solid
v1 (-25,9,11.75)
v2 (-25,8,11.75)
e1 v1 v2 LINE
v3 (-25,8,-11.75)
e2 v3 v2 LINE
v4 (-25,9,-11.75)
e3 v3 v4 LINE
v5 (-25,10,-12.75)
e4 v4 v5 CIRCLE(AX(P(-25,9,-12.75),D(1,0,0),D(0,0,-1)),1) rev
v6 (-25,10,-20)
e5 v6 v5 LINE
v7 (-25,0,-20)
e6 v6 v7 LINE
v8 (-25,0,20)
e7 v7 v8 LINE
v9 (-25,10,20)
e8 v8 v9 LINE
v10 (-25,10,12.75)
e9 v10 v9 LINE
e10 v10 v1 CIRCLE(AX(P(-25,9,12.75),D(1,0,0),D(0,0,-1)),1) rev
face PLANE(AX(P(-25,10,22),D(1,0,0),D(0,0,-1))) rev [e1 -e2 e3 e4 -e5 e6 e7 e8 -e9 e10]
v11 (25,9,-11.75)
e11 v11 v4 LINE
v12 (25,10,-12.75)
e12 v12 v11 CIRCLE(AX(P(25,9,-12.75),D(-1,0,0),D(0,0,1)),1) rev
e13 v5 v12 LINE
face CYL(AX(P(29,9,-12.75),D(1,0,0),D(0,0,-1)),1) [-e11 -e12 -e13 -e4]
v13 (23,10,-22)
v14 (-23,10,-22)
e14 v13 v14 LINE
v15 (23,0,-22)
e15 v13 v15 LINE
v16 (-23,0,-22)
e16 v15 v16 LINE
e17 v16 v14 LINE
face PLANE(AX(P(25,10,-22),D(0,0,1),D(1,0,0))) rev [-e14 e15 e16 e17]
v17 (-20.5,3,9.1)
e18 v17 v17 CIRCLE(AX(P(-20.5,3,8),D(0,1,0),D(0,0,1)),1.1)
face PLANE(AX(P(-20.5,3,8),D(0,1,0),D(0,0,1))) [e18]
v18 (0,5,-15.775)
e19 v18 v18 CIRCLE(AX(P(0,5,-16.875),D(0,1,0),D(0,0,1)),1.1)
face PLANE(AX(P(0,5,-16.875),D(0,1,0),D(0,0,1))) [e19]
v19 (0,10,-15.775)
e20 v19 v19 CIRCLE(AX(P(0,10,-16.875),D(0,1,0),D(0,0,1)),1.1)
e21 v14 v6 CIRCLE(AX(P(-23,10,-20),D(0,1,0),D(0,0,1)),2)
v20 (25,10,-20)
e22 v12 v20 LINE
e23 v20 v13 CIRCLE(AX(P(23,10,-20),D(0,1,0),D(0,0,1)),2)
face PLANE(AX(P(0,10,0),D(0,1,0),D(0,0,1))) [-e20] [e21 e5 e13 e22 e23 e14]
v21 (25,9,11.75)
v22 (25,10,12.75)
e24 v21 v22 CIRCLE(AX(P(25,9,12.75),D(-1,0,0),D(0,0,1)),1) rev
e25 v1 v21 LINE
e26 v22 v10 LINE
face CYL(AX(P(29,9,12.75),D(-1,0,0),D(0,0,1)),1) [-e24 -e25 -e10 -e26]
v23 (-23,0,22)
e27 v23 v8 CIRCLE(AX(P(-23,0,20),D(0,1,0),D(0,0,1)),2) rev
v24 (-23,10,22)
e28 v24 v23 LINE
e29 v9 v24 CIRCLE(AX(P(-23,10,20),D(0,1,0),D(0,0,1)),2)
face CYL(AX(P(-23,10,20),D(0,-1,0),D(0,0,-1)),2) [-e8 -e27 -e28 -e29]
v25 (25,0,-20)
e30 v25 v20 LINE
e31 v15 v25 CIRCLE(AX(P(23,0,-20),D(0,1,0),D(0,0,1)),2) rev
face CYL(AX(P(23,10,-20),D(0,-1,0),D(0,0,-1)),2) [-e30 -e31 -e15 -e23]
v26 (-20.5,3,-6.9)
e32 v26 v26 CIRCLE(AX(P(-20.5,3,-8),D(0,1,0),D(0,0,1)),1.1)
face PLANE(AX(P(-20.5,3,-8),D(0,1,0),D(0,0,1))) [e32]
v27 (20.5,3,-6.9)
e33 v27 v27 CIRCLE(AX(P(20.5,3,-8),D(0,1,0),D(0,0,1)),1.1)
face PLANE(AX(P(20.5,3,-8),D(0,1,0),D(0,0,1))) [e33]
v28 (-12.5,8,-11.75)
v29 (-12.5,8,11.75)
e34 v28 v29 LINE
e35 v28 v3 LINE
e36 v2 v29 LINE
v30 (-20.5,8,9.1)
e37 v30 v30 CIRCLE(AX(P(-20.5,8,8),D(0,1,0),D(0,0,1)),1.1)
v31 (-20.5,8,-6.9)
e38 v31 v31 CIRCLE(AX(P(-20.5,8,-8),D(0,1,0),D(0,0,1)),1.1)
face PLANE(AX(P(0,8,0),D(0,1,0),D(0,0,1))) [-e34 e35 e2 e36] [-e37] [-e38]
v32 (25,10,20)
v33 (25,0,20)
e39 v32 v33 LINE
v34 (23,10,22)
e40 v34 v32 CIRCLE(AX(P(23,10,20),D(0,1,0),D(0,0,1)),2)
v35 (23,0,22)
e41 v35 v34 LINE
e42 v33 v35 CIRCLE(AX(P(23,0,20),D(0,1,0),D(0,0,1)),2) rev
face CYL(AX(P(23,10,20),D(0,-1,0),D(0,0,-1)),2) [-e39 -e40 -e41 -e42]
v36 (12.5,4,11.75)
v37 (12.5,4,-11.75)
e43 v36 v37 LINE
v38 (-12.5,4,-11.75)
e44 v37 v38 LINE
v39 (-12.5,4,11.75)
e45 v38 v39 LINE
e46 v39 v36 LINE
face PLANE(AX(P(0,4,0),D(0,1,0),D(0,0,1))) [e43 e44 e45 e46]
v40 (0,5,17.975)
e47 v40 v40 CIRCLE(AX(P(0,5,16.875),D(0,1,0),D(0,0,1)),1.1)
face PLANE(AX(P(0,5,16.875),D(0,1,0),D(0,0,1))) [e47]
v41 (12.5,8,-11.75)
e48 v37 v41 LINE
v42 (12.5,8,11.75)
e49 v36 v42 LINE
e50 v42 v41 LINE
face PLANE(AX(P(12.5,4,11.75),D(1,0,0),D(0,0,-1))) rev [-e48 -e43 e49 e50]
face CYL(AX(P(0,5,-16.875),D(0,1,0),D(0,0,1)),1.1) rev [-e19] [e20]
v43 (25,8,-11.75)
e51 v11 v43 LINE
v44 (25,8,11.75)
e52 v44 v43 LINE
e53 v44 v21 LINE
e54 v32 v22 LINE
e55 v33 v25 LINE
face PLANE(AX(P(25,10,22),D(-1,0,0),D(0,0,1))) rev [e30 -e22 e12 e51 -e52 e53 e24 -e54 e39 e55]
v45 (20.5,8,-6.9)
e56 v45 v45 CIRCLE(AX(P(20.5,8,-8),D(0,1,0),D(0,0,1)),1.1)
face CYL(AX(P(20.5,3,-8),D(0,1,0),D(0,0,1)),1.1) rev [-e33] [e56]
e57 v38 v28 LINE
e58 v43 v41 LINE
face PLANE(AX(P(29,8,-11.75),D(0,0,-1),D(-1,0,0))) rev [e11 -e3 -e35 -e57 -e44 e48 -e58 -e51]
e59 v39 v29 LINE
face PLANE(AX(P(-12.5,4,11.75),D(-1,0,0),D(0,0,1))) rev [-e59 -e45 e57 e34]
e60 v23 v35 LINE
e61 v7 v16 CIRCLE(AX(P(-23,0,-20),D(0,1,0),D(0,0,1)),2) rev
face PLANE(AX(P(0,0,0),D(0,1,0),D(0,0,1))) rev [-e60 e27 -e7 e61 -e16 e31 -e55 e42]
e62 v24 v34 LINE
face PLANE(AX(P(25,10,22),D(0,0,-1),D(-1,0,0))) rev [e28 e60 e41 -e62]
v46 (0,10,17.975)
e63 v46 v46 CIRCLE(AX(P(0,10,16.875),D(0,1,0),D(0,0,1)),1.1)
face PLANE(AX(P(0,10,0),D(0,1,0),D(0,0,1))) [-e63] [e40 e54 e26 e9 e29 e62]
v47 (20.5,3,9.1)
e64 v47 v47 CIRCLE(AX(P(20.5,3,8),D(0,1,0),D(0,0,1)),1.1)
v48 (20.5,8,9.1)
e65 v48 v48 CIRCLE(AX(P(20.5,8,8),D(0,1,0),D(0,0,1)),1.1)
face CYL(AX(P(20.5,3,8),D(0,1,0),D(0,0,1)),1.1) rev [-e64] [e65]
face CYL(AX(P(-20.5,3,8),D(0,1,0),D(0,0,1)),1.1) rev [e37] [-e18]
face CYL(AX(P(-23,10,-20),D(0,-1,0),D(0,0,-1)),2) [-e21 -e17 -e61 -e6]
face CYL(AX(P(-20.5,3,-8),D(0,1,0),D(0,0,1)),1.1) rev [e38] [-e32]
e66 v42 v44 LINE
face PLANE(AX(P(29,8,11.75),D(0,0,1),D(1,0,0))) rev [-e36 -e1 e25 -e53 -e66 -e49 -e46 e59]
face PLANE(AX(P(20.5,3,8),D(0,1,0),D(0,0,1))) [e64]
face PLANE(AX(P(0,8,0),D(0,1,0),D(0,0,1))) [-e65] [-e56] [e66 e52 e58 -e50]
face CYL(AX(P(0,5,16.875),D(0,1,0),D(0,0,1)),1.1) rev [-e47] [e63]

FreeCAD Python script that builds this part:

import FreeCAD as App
import Part
import Sketcher
Q = App.Units.Quantity


def edges_at(feature, points):
    """Names of the edges that pass closest to the given points."""
    edges = feature.Shape.Edges
    near = lambda p: min(range(len(edges)), key=lambda i: edges[i].distToShape(Part.Vertex(*p))[0])
    return sorted({f"Edge{near(p) + 1}" for p in points})

doc = App.newDocument("Part")
body = doc.addObject("PartDesign::Body", "Body")

# Sketch on XZ plane
sketch1 = doc.addObject("Sketcher::SketchObject", "Sketch")
body.addObject(sketch1)
sketch1.AttachmentSupport = (doc.XZ_Plane, [""])
sketch1.MapMode = "FlatFace"
sketch1.addGeometry([
    Part.LineSegment(App.Vector(-25, -22, 0), App.Vector(-25, 22, 0)),
    Part.LineSegment(App.Vector(-25, 22, 0), App.Vector(25, 22, 0)),
    Part.LineSegment(App.Vector(25, 22, 0), App.Vector(25, -22, 0)),
    Part.LineSegment(App.Vector(25, -22, 0), App.Vector(-25, -22, 0)),
], False)
sketch1.addConstraint([
    Sketcher.Constraint("Coincident", 0, 2, 1, 1),
    Sketcher.Constraint("Coincident", 1, 2, 2, 1),
    Sketcher.Constraint("Coincident", 2, 2, 3, 1),
    Sketcher.Constraint("Coincident", 3, 2, 0, 1),
    Sketcher.Constraint("Vertical", 0),
    Sketcher.Constraint("Horizontal", 1),
    Sketcher.Constraint("Vertical", 2),
    Sketcher.Constraint("Horizontal", 3),
    Sketcher.Constraint("Symmetric", 0, 2, 2, 2, -1, 1),
    Sketcher.Constraint("DistanceX", 1, 1, 1, 2, Q("50 mm")),
    Sketcher.Constraint("DistanceY", 0, 1, 0, 2, Q("44 mm")),
])
pad1 = doc.addObject("PartDesign::Pad", "Pad")
body.addObject(pad1)
pad1.Profile = sketch1
pad1.Length = 10
pad1.Reversed = True

# Sketch on XZ plane
sketch2 = doc.addObject("Sketcher::SketchObject", "Sketch001")
body.addObject(sketch2)
sketch2.AttachmentSupport = (doc.XZ_Plane, [""])
sketch2.MapMode = "FlatFace"
sketch2.AttachmentOffset = App.Placement(App.Vector(0, 0, -10), App.Rotation())
sketch2.addGeometry([
    Part.LineSegment(App.Vector(-29, -11.75, 0), App.Vector(-29, 11.75, 0)),
    Part.LineSegment(App.Vector(-29, 11.75, 0), App.Vector(29, 11.75, 0)),
    Part.LineSegment(App.Vector(29, 11.75, 0), App.Vector(29, -11.75, 0)),
    Part.LineSegment(App.Vector(29, -11.75, 0), App.Vector(-29, -11.75, 0)),
], False)
sketch2.addConstraint([
    Sketcher.Constraint("Coincident", 0, 2, 1, 1),
    Sketcher.Constraint("Coincident", 1, 2, 2, 1),
    Sketcher.Constraint("Coincident", 2, 2, 3, 1),
    Sketcher.Constraint("Coincident", 3, 2, 0, 1),
    Sketcher.Constraint("Vertical", 0),
    Sketcher.Constraint("Horizontal", 1),
    Sketcher.Constraint("Vertical", 2),
    Sketcher.Constraint("Horizontal", 3),
    Sketcher.Constraint("Symmetric", 0, 2, 2, 2, -1, 1),
    Sketcher.Constraint("DistanceX", 1, 1, 1, 2, Q("58 mm")),
    Sketcher.Constraint("DistanceY", 0, 1, 0, 2, Q("23.5 mm")),
])
pocket1 = doc.addObject("PartDesign::Pocket", "Pocket")
body.addObject(pocket1)
pocket1.Profile = sketch2
pocket1.Length = 2
pocket1.Reversed = True

# Sketch on XZ plane
sketch3 = doc.addObject("Sketcher::SketchObject", "Sketch002")
body.addObject(sketch3)
sketch3.AttachmentSupport = (doc.XZ_Plane, [""])
sketch3.MapMode = "FlatFace"
sketch3.AttachmentOffset = App.Placement(App.Vector(0, 0, -8), App.Rotation())
sketch3.addGeometry([
    Part.LineSegment(App.Vector(-12.5, -11.75, 0), App.Vector(-12.5, 11.75, 0)),
    Part.LineSegment(App.Vector(-12.5, 11.75, 0), App.Vector(12.5, 11.75, 0)),
    Part.LineSegment(App.Vector(12.5, 11.75, 0), App.Vector(12.5, -11.75, 0)),
    Part.LineSegment(App.Vector(12.5, -11.75, 0), App.Vector(-12.5, -11.75, 0)),
], False)
sketch3.addConstraint([
    Sketcher.Constraint("Coincident", 0, 2, 1, 1),
    Sketcher.Constraint("Coincident", 1, 2, 2, 1),
    Sketcher.Constraint("Coincident", 2, 2, 3, 1),
    Sketcher.Constraint("Coincident", 3, 2, 0, 1),
    Sketcher.Constraint("Vertical", 0),
    Sketcher.Constraint("Horizontal", 1),
    Sketcher.Constraint("Vertical", 2),
    Sketcher.Constraint("Horizontal", 3),
    Sketcher.Constraint("Symmetric", 0, 2, 2, 2, -1, 1),
    Sketcher.Constraint("DistanceX", 1, 1, 1, 2, Q("25 mm")),
    Sketcher.Constraint("DistanceY", 0, 1, 0, 2, Q("23.5 mm")),
])
pocket2 = doc.addObject("PartDesign::Pocket", "Pocket001")
body.addObject(pocket2)
pocket2.Profile = sketch3
pocket2.Length = 4
pocket2.Reversed = True

# Sketch on XZ plane
sketch4 = doc.addObject("Sketcher::SketchObject", "Sketch003")
body.addObject(sketch4)
sketch4.AttachmentSupport = (doc.XZ_Plane, [""])
sketch4.MapMode = "FlatFace"
sketch4.AttachmentOffset = App.Placement(App.Vector(0, 0, -8), App.Rotation())
sketch4.addGeometry([
    Part.Circle(App.Vector(-20.5, -8, 0), App.Vector(0, 0, 1), 1.1),
    Part.Circle(App.Vector(-20.5, 8, 0), App.Vector(0, 0, 1), 1.1),
    Part.Circle(App.Vector(20.5, -8, 0), App.Vector(0, 0, 1), 1.1),
    Part.Circle(App.Vector(20.5, 8, 0), App.Vector(0, 0, 1), 1.1),
], False)
sketch4.addConstraint([
    Sketcher.Constraint("Equal", 0, 1),
    Sketcher.Constraint("Equal", 1, 2),
    Sketcher.Constraint("Equal", 2, 3),
    Sketcher.Constraint("Symmetric", 1, 3, 2, 3, -1, 1),
    Sketcher.Constraint("Symmetric", 0, 3, 3, 3, -1, 1),
    Sketcher.Constraint("Symmetric", 0, 3, 2, 3, -2),
    Sketcher.Constraint("Diameter", 0, Q("2.2 mm")),
    Sketcher.Constraint("DistanceY", 0, 3, -1, 1, Q("8 mm")),
    Sketcher.Constraint("DistanceX", 0, 3, 2, 3, Q("41 mm")),
])
pocket3 = doc.addObject("PartDesign::Pocket", "Pocket002")
body.addObject(pocket3)
pocket3.Profile = sketch4
pocket3.Length = 5
pocket3.Reversed = True

# Sketch on XZ plane
sketch5 = doc.addObject("Sketcher::SketchObject", "Sketch004")
body.addObject(sketch5)
sketch5.AttachmentSupport = (doc.XZ_Plane, [""])
sketch5.MapMode = "FlatFace"
sketch5.AttachmentOffset = App.Placement(App.Vector(0, 0, -10), App.Rotation())
sketch5.addGeometry([
    Part.Circle(App.Vector(0, -16.875, 0), App.Vector(0, 0, 1), 1.1),
    Part.Circle(App.Vector(0, 16.875, 0), App.Vector(0, 0, 1), 1.1),
], False)
sketch5.addConstraint([
    Sketcher.Constraint("Equal", 0, 1),
    Sketcher.Constraint("Symmetric", 0, 3, 1, 3, -1, 1),
    Sketcher.Constraint("PointOnObject", 0, 3, -2),
    Sketcher.Constraint("Diameter", 0, Q("2.2 mm")),
    Sketcher.Constraint("DistanceY", 0, 3, 1, 3, Q("33.75 mm")),
])
pocket4 = doc.addObject("PartDesign::Pocket", "Pocket003")
body.addObject(pocket4)
pocket4.Profile = sketch5
pocket4.Length = 5
pocket4.Reversed = True
doc.recompute()

fillet = doc.addObject("PartDesign::Fillet", "Fillet")
body.addObject(fillet)
fillet.Base = (pocket4, edges_at(pocket4, [
    (-25, 5, -22),
    (25, 5, -22),
    (25, 5, 22),
    (-25, 5, 22),
]))
fillet.Radius = 2
doc.recompute()

fillet2 = doc.addObject("PartDesign::Fillet", "Fillet001")
body.addObject(fillet2)
fillet2.Base = (fillet, edges_at(fillet, [(0, 10, 11.75), (0, 10, -11.75)]))
fillet2.Radius = 1

doc.recompute()
